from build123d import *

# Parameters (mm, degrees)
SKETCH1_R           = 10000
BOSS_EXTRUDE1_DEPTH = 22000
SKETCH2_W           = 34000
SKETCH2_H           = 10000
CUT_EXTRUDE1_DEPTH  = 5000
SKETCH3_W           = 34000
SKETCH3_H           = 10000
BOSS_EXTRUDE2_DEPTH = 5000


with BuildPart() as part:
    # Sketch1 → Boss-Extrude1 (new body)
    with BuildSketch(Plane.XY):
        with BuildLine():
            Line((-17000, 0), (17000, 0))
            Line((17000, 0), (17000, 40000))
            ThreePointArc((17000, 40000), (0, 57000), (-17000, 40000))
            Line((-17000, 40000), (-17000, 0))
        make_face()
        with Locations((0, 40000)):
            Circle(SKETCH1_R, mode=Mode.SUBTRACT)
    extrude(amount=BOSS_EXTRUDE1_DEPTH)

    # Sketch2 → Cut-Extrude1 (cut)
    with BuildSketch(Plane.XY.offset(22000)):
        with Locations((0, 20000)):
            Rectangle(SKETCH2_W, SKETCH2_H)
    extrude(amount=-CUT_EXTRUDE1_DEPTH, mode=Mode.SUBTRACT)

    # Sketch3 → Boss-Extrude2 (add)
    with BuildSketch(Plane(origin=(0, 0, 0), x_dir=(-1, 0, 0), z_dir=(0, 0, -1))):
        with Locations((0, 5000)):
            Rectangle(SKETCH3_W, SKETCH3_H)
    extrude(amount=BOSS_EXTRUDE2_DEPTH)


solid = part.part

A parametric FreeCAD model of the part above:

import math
import FreeCAD as App
import Part
import Sketcher
from FreeCAD import Vector
Q = App.Units.Quantity

doc = App.newDocument("Part")
params = doc.addObject("Spreadsheet::Sheet", "Params")
for row, (alias, value) in enumerate([
    ("sketch1_diameter", "20000 mm"),
    ("sketch1_radius", "17000 mm"),
    ("sketch1_height", "40000 mm"),
    ("pad1_length", "22000 mm"),
    ("sketch2_width", "34000 mm"),
    ("sketch2_height", "10000 mm"),
    ("pocket1_length", "5000 mm"),
    ("sketch3_width", "34000 mm"),
    ("sketch3_height", "10000 mm"),
    ("pad2_length", "5000 mm"),
], start=1):
    params.set(f"A{row}", alias)
    params.set(f"B{row}", "=" + value)
    params.setAlias(f"B{row}", alias)

body = doc.addObject("PartDesign::Body", "Body")

# Sketch on XY plane
sketch1 = body.newObject("Sketcher::SketchObject", "Sketch")
sketch1.AttachmentSupport = (doc.getObject("XY_Plane"), [""])
sketch1.MapMode = "FlatFace"
sketch1.addGeometry(Part.LineSegment(Vector(-17000, 0, 0), Vector(17000, 0, 0)), False)
sketch1.addGeometry(Part.LineSegment(Vector(17000, 0, 0), Vector(17000, 40000, 0)), False)
sketch1.addGeometry(Part.ArcOfCircle(Part.Circle(Vector(0, 40000, 0), Vector(0, 0, 1), 17000), math.radians(0), math.radians(180)), False)
sketch1.addGeometry(Part.LineSegment(Vector(-17000, 40000, 0), Vector(-17000, 0, 0)), False)
sketch1.addGeometry(Part.Circle(Vector(0, 40000, 0), Vector(0, 0, 1), 10000), False)
sketch1.addConstraint(Sketcher.Constraint("Coincident", 0, 2, 1, 1))
sketch1.addConstraint(Sketcher.Constraint("Coincident", 1, 2, 2, 1))
sketch1.addConstraint(Sketcher.Constraint("Coincident", 2, 2, 3, 1))
sketch1.addConstraint(Sketcher.Constraint("Coincident", 3, 2, 0, 1))
sketch1.addConstraint(Sketcher.Constraint("Horizontal", 0))
sketch1.addConstraint(Sketcher.Constraint("Vertical", 1))
sketch1.addConstraint(Sketcher.Constraint("Vertical", 3))
sketch1.addConstraint(Sketcher.Constraint("Coincident", 4, 3, 2, 3))
sketch1.addConstraint(Sketcher.Constraint("Symmetric", 0, 2, 3, 2, -1, 1))
sketch1.addConstraint(Sketcher.Constraint("Horizontal", 4, 3, 1, 2))
sketch1.addConstraint(Sketcher.Constraint("Equal", 1, 3))
sketch1.addConstraint(Sketcher.Constraint("Diameter", 4, Q("20000 mm")))
sketch1.addConstraint(Sketcher.Constraint("Radius", 2, Q("17000 mm")))
sketch1.addConstraint(Sketcher.Constraint("DistanceY", 1, 1, 1, 2, Q("40000 mm")))
sketch1.setExpression("Constraints[11]", "Params.sketch1_diameter")
sketch1.setExpression("Constraints[12]", "Params.sketch1_radius")
sketch1.setExpression("Constraints[13]", "Params.sketch1_height")
pad1 = body.newObject("PartDesign::Pad", "Pad")
pad1.Profile = sketch1
pad1.setExpression("Length", "Params.pad1_length")

# Sketch on XY plane
sketch2 = body.newObject("Sketcher::SketchObject", "Sketch001")
sketch2.AttachmentSupport = (doc.getObject("XY_Plane"), [""])
sketch2.MapMode = "FlatFace"
sketch2.AttachmentOffset = App.Placement(Vector(0, 0, 22000), App.Rotation())
sketch2.addGeometry(Part.LineSegment(Vector(-17000, 25000, 0), Vector(-17000, 15000, 0)), False)
sketch2.addGeometry(Part.LineSegment(Vector(-17000, 15000, 0), Vector(17000, 15000, 0)), False)
sketch2.addGeometry(Part.LineSegment(Vector(17000, 15000, 0), Vector(17000, 25000, 0)), False)
sketch2.addGeometry(Part.LineSegment(Vector(17000, 25000, 0), Vector(-17000, 25000, 0)), False)
sketch2.addConstraint(Sketcher.Constraint("Coincident", 0, 2, 1, 1))
sketch2.addConstraint(Sketcher.Constraint("Coincident", 1, 2, 2, 1))
sketch2.addConstraint(Sketcher.Constraint("Coincident", 2, 2, 3, 1))
sketch2.addConstraint(Sketcher.Constraint("Coincident", 3, 2, 0, 1))
sketch2.addConstraint(Sketcher.Constraint("Vertical", 0))
sketch2.addConstraint(Sketcher.Constraint("Horizontal", 1))
sketch2.addConstraint(Sketcher.Constraint("Vertical", 2))
sketch2.addConstraint(Sketcher.Constraint("Horizontal", 3))
sketch2.addConstraint(Sketcher.Constraint("DistanceX", 1, 1, 1, 2, Q("34000 mm")))
sketch2.addConstraint(Sketcher.Constraint("DistanceY", 0, 2, 0, 1, Q("10000 mm")))
sketch2.addConstraint(Sketcher.Constraint("DistanceX", 0, 2, -1, 1, Q("17000 mm")))
sketch2.addConstraint(Sketcher.Constraint("DistanceY", -1, 1, 0, 2, Q("15000 mm")))
sketch2.setExpression("Constraints[8]", "Params.sketch2_width")
sketch2.setExpression("Constraints[9]", "Params.sketch2_height")
pocket1 = body.newObject("PartDesign::Pocket", "Pocket")
pocket1.Profile = sketch2
pocket1.setExpression("Length", "Params.pocket1_length")

# Sketch on XY plane
sketch3 = body.newObject("Sketcher::SketchObject", "Sketch002")
sketch3.AttachmentSupport = (doc.getObject("XY_Plane"), [""])
sketch3.MapMode = "FlatFace"
sketch3.addGeometry(Part.LineSegment(Vector(17000, 10000, 0), Vector(17000, 0, 0)), False)
sketch3.addGeometry(Part.LineSegment(Vector(17000, 0, 0), Vector(-17000, 0, 0)), False)
sketch3.addGeometry(Part.LineSegment(Vector(-17000, 0, 0), Vector(-17000, 10000, 0)), False)
sketch3.addGeometry(Part.LineSegment(Vector(-17000, 10000, 0), Vector(17000, 10000, 0)), False)
sketch3.addConstraint(Sketcher.Constraint("Coincident", 0, 2, 1, 1))
sketch3.addConstraint(Sketcher.Constraint("Coincident", 1, 2, 2, 1))
sketch3.addConstraint(Sketcher.Constraint("Coincident", 2, 2, 3, 1))
sketch3.addConstraint(Sketcher.Constraint("Coincident", 3, 2, 0, 1))
sketch3.addConstraint(Sketcher.Constraint("Vertical", 0))
sketch3.addConstraint(Sketcher.Constraint("Horizontal", 1))
sketch3.addConstraint(Sketcher.Constraint("Vertical", 2))
sketch3.addConstraint(Sketcher.Constraint("Horizontal", 3))
sketch3.addConstraint(Sketcher.Constraint("Symmetric", 0, 2, 1, 2, -1, 1))
sketch3.addConstraint(Sketcher.Constraint("DistanceX", 1, 2, 1, 1, Q("34000 mm")))
sketch3.addConstraint(Sketcher.Constraint("DistanceY", 0, 2, 0, 1, Q("10000 mm")))
sketch3.setExpression("Constraints[9]", "Params.sketch3_width")
sketch3.setExpression("Constraints[10]", "Params.sketch3_height")
pad2 = body.newObject("PartDesign::Pad", "Pad001")
pad2.Profile = sketch3
pad2.setExpression("Length", "Params.pad2_length")
pad2.Reversed = True

doc.recompute()
